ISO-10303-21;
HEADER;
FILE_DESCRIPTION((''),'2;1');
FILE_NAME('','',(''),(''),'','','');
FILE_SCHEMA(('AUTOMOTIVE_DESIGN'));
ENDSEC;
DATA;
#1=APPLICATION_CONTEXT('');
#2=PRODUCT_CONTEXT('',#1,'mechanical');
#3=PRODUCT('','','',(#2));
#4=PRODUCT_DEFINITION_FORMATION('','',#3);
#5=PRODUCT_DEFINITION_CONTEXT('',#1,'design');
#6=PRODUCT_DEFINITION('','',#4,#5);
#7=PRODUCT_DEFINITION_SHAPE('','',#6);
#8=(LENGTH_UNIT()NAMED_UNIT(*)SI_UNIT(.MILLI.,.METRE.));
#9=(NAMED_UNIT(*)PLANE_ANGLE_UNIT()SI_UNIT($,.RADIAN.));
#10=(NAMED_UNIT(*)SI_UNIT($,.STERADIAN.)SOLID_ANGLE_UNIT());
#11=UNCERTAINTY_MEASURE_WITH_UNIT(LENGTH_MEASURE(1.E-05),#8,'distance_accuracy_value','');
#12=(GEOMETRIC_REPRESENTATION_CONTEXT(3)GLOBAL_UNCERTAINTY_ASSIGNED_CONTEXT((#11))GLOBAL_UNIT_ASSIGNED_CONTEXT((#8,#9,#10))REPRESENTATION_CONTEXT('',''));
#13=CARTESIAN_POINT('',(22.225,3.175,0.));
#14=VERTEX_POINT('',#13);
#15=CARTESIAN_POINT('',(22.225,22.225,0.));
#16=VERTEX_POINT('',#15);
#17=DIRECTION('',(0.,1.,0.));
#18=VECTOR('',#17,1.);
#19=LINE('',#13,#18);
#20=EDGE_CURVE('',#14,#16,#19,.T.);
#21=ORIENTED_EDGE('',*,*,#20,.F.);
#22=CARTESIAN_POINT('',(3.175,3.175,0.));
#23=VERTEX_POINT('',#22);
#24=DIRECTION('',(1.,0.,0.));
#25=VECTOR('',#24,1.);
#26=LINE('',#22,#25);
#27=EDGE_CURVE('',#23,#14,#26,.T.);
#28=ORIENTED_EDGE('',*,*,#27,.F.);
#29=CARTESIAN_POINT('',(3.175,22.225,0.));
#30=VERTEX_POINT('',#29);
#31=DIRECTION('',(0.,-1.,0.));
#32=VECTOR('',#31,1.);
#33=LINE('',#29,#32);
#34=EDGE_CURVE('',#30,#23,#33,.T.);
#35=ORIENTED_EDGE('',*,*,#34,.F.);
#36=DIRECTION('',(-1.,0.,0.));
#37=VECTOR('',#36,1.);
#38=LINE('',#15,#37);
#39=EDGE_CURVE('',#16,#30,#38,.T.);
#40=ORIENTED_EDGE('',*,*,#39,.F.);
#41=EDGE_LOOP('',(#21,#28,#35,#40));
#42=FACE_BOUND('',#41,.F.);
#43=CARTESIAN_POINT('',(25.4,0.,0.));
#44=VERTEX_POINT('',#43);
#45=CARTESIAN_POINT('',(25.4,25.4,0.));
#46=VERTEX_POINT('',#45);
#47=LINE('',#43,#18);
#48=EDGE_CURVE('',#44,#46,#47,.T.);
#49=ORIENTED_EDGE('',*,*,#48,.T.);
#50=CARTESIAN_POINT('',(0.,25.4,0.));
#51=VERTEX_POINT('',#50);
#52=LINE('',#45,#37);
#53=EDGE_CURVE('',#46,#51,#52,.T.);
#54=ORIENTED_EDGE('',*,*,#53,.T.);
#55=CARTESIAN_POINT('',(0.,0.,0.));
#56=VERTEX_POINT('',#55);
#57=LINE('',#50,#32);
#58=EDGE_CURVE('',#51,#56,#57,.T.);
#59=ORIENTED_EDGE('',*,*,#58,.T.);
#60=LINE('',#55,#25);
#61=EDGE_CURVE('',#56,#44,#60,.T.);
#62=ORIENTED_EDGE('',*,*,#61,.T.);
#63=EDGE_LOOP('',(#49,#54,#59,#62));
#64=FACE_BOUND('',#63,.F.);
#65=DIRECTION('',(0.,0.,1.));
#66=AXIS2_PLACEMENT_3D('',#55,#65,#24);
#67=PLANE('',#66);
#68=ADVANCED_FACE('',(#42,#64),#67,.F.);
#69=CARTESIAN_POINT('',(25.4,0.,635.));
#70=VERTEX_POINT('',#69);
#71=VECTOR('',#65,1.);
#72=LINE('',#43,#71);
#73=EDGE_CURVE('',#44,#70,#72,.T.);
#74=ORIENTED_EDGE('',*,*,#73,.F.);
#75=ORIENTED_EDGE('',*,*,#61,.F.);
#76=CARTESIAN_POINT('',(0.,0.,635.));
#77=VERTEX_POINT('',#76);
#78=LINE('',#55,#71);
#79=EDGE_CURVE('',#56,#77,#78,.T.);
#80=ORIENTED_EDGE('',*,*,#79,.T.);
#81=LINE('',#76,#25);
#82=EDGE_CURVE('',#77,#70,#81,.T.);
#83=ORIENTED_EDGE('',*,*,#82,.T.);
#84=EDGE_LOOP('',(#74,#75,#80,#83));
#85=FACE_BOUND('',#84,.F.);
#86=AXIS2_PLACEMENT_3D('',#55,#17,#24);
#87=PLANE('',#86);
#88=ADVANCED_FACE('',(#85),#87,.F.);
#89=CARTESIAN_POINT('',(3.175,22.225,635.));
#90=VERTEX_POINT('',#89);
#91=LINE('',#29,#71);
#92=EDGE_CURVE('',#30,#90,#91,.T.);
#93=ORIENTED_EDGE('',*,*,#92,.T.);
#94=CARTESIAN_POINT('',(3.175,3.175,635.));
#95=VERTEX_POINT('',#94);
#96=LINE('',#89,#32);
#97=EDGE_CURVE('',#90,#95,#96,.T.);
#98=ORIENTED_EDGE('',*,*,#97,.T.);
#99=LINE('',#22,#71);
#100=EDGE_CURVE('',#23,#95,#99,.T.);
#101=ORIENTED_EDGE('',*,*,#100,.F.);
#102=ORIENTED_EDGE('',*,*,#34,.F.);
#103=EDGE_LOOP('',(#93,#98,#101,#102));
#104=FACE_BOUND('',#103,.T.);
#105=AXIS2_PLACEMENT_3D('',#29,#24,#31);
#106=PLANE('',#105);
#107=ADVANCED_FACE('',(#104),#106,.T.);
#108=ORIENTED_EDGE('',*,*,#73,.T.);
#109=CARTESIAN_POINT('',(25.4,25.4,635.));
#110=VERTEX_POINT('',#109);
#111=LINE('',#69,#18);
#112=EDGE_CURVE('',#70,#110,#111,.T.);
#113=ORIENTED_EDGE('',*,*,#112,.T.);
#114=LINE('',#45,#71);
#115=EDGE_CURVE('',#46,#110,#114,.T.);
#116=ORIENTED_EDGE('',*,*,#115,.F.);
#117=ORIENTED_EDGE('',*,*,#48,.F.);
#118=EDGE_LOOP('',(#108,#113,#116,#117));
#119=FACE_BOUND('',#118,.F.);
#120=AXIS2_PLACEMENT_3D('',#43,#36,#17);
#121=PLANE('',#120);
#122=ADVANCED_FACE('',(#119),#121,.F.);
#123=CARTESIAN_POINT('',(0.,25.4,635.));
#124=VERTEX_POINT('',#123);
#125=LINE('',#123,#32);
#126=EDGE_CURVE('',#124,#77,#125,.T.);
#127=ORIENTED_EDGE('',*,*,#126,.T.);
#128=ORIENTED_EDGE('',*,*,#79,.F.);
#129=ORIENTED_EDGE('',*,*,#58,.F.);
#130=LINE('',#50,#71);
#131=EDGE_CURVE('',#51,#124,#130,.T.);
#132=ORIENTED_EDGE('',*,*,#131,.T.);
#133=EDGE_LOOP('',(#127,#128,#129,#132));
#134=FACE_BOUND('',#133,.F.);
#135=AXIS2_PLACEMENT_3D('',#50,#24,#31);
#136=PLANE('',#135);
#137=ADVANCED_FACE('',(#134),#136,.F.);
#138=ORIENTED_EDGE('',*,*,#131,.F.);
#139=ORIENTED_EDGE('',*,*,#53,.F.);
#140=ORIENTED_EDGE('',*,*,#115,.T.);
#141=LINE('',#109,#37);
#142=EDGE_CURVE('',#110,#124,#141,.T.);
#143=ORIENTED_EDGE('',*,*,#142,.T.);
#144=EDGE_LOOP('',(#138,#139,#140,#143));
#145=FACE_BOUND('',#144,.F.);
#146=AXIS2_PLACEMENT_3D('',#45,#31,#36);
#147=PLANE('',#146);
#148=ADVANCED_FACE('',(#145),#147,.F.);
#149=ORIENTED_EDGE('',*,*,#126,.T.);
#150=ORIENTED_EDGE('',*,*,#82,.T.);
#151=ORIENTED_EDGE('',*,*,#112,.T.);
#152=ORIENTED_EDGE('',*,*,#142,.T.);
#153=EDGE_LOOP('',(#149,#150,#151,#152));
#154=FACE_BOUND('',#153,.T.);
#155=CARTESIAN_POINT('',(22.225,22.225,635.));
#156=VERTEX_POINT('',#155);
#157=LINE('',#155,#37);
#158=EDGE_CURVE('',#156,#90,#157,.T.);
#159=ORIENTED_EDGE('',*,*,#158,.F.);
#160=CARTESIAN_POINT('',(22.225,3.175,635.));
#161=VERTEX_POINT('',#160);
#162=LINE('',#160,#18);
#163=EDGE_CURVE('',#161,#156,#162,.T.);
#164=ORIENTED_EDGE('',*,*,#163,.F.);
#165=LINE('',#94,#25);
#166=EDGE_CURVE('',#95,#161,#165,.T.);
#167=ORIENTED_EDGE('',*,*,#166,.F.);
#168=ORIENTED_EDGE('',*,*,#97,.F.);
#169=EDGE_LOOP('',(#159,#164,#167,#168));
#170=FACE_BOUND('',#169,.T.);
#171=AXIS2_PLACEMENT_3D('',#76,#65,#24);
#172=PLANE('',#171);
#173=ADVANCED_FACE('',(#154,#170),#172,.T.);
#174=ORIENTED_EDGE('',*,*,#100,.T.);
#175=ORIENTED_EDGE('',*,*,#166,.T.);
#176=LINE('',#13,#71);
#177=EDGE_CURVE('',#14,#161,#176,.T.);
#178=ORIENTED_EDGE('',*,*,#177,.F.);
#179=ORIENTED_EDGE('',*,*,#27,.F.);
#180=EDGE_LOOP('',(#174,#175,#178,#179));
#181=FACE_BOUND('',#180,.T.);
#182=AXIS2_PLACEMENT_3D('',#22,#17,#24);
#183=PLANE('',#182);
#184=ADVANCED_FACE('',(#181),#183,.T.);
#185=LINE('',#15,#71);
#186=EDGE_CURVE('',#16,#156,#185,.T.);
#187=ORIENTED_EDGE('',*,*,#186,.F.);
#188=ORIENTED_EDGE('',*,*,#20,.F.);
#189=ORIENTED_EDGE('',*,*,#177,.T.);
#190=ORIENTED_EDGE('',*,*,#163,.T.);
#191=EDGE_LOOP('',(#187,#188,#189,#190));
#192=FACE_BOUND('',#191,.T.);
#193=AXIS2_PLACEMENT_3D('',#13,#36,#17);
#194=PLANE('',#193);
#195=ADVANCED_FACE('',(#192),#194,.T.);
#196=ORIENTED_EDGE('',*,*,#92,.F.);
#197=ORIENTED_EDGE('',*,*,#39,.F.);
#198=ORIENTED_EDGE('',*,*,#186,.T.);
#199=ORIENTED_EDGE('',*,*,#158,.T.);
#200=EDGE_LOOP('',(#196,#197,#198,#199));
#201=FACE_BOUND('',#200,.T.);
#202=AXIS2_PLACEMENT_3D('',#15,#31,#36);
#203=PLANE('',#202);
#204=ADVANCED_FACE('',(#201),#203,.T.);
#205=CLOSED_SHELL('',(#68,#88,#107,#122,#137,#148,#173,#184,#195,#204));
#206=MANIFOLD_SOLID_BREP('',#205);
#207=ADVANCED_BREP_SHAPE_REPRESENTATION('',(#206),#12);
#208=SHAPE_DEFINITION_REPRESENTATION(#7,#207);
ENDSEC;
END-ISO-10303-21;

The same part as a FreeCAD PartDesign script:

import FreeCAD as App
import Part
import Sketcher
Q = App.Units.Quantity


def add_polygon(sketch, points):
    """Adds a closed chain of lines whose ends are joined by coincident constraints."""
    first, n = sketch.GeometryCount, len(points)
    for a, b in zip(points, points[1:] + points[:1]):
        sketch.addGeometry(Part.LineSegment(App.Vector(*a, 0), App.Vector(*b, 0)), False)
    for i in range(n):
        sketch.addConstraint(Sketcher.Constraint("Coincident", first + i, 2, first + (i + 1) % n, 1))

doc = App.newDocument("Part")
params = doc.addObject("Spreadsheet::Sheet", "Params")
for row, (alias, value) in enumerate([
    ("sketch1_width", "1 in"),
    ("sketch1_width2", "0.75 in"),
    ("pad1_length", "25 in"),
], start=1):
    params.set(f"A{row}", alias)
    params.set(f"B{row}", "=" + value)
    params.setAlias(f"B{row}", alias)

body = doc.addObject("PartDesign::Body", "Body")

# Sketch on XY plane
sketch1 = body.newObject("Sketcher::SketchObject", "Sketch")
sketch1.AttachmentSupport = (doc.getObject("XY_Plane"), [""])
sketch1.MapMode = "FlatFace"
add_polygon(sketch1, [(0, 25), (0, 0), (25, 0), (25, 25)])  # lines 0-3
add_polygon(sketch1, [(22, 3), (3, 3), (3, 22), (22, 22)])  # lines 4-7
sketch1.addConstraint([
    Sketcher.Constraint("Vertical", 0),
    Sketcher.Constraint("Horizontal", 1),
    Sketcher.Constraint("Vertical", 2),
    Sketcher.Constraint("Horizontal", 3),
    Sketcher.Constraint("Horizontal", 4),
    Sketcher.Constraint("Vertical", 5),
    Sketcher.Constraint("Horizontal", 6),
    Sketcher.Constraint("Vertical", 7),
    Sketcher.Constraint("Coincident", 0, 2, -1, 1),
    Sketcher.Constraint("Equal", 3, 0),
    Sketcher.Constraint("Equal", 6, 5),
    Sketcher.Constraint("DistanceX", 1, 1, 1, 2, Q("1 in")),
    Sketcher.Constraint("DistanceX", 4, 2, 4, 1, Q("0.75 in")),
    Sketcher.Constraint("DistanceX", -1, 1, 4, 2, Q("0.125 in")),
    Sketcher.Constraint("DistanceY", -1, 1, 4, 2, Q("0.125 in")),
])
sketch1.setExpression("Constraints[19]", "Params.sketch1_width")
sketch1.setExpression("Constraints[20]", "Params.sketch1_width2")
pad1 = body.newObject("PartDesign::Pad", "Pad")
pad1.Profile = sketch1
pad1.setExpression("Length", "Params.pad1_length")

doc.recompute()
